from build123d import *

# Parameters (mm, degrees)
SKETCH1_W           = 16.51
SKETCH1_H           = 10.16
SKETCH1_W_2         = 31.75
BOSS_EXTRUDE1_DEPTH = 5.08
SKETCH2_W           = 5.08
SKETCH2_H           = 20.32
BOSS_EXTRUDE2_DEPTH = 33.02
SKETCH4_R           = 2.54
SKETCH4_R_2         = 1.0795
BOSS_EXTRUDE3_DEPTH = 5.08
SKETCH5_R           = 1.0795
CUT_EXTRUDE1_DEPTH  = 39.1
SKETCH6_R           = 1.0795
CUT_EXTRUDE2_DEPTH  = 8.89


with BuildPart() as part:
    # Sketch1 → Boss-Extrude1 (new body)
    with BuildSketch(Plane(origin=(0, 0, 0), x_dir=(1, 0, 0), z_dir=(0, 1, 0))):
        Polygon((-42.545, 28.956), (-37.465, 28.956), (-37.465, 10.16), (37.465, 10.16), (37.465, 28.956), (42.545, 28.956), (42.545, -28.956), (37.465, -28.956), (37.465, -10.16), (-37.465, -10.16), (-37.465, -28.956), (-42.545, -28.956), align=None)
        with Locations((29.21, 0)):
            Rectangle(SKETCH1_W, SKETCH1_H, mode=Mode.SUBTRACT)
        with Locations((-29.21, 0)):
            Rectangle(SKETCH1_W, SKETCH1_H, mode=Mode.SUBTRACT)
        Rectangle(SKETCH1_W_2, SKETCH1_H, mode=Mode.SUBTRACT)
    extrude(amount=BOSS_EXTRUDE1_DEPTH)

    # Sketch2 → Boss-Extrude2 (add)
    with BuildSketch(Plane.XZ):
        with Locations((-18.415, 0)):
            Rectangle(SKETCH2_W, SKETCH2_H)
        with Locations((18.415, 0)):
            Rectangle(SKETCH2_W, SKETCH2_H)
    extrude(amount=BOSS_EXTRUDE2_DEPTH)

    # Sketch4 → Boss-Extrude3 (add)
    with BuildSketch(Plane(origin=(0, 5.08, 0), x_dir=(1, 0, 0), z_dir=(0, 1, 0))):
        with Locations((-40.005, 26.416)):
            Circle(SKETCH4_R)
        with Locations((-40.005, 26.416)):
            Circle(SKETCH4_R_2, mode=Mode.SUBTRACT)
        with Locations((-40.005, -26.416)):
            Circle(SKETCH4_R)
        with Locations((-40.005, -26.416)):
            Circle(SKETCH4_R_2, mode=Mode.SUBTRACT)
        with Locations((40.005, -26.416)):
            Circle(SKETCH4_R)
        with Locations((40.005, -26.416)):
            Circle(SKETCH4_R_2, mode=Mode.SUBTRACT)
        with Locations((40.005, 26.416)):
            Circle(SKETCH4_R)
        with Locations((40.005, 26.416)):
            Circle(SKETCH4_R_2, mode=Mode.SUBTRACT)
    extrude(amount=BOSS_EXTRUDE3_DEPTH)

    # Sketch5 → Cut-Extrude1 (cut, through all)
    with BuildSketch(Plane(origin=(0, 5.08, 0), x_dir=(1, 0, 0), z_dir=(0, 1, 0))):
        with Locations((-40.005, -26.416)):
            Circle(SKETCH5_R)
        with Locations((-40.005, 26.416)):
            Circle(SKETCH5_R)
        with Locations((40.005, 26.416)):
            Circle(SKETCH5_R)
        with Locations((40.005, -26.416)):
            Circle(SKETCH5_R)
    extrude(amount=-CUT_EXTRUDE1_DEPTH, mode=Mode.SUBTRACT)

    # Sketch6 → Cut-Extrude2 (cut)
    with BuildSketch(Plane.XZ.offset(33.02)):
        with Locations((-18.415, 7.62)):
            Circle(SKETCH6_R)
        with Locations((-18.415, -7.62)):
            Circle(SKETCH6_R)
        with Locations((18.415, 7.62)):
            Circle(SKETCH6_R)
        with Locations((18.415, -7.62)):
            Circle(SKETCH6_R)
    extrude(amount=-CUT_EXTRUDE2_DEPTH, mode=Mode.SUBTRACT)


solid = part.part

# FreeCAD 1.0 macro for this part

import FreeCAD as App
import Part
import Sketcher
Q = App.Units.Quantity


def add_polygon(sketch, points):
    """Adds a closed chain of lines whose ends are joined by coincident constraints."""
    first, n = sketch.GeometryCount, len(points)
    for a, b in zip(points, points[1:] + points[:1]):
        sketch.addGeometry(Part.LineSegment(App.Vector(*a, 0), App.Vector(*b, 0)), False)
    for i in range(n):
        sketch.addConstraint(Sketcher.Constraint("Coincident", first + i, 2, first + (i + 1) % n, 1))

doc = App.newDocument("Part")
body = doc.addObject("PartDesign::Body", "Body")

sketch1 = body.newObject("Sketcher::SketchObject", "Sketch")
sketch1.AttachmentSupport = (doc.getObject("XZ_Plane"), [""])
sketch1.MapMode = "FlatFace"
add_polygon(sketch1, [(-37, -29), (-43, -29), (-43, 29), (-37, 29), (-37, 10), (37, 10), (37, 29), (43, 29), (43, -29), (37, -29), (37, -10), (-37, -10)])
add_polygon(sketch1, [(21, 5), (21, -5), (37, -5), (37, 5)])
add_polygon(sketch1, [(-16, 5), (-16, -5), (16, -5), (16, 5)])
add_polygon(sketch1, [(-37, 5), (-37, -5), (-21, -5), (-21, 5)])
sketch1.addConstraint([
    Sketcher.Constraint("Horizontal", 0),
    Sketcher.Constraint("Vertical", 1),
    Sketcher.Constraint("Horizontal", 2),
    Sketcher.Constraint("Vertical", 3),
    Sketcher.Constraint("Horizontal", 4),
    Sketcher.Constraint("Vertical", 5),
    Sketcher.Constraint("Horizontal", 6),
    Sketcher.Constraint("Vertical", 7),
    Sketcher.Constraint("Horizontal", 8),
    Sketcher.Constraint("Vertical", 9),
    Sketcher.Constraint("Horizontal", 10),
    Sketcher.Constraint("Vertical", 11),
    Sketcher.Constraint("Vertical", 12),
    Sketcher.Constraint("Horizontal", 13),
    Sketcher.Constraint("Vertical", 14),
    Sketcher.Constraint("Horizontal", 15),
    Sketcher.Constraint("Vertical", 16),
    Sketcher.Constraint("Horizontal", 17),
    Sketcher.Constraint("Vertical", 18),
    Sketcher.Constraint("Horizontal", 19),
    Sketcher.Constraint("Vertical", 20),
    Sketcher.Constraint("Horizontal", 21),
    Sketcher.Constraint("Vertical", 22),
    Sketcher.Constraint("Horizontal", 23),
    Sketcher.Constraint("Symmetric", 0, 2, 6, 2, -1, 1),
    Sketcher.Constraint("Symmetric", 2, 2, 8, 2, -1, 1),
    Sketcher.Constraint("Symmetric", 4, 2, 10, 2, -1, 1),
    Sketcher.Constraint("Symmetric", 16, 2, 18, 2, -1, 1),
    Sketcher.Constraint("Symmetric", 14, 2, 20, 2, -1, 1),
    Sketcher.Constraint("Symmetric", 12, 2, 22, 2, -1, 1),
    Sketcher.Constraint("Symmetric", 2, 2, 5, 2, -2),
    Sketcher.Constraint("Horizontal", 13, 2, 16, 2),
    Sketcher.Constraint("Horizontal", 15, 2, 18, 2),
    Sketcher.Constraint("Vertical", 9, 2, 13, 2),
    Sketcher.Constraint("DistanceX", 0, 2, 0, 1, Q("0.2 in")),
    Sketcher.Constraint("DistanceY", 12, 2, 12, 1, Q("0.4 in")),
    Sketcher.Constraint("DistanceX", 4, 1, 4, 2, Q("2.95 in")),
    Sketcher.Constraint("DistanceX", 13, 1, 13, 2, Q("0.65 in")),
    Sketcher.Constraint("DistanceX", 17, 1, 17, 2, Q("1.25 in")),
    Sketcher.Constraint("DistanceY", 1, 1, 1, 2, Q("2.28 in")),
    Sketcher.Constraint("DistanceY", 3, 2, 3, 1, Q("0.74 in")),
])
pad1 = body.newObject("PartDesign::Pad", "Pad")
pad1.Profile = sketch1
pad1.Length = Q("0.2 in")
pad1.Reversed = True

sketch2 = body.newObject("Sketcher::SketchObject", "Sketch001")
sketch2.AttachmentSupport = (doc.getObject("XZ_Plane"), [""])
sketch2.MapMode = "FlatFace"
add_polygon(sketch2, [(-21, 10), (-21, -10), (-16, -10), (-16, 10)])
add_polygon(sketch2, [(16, 10), (16, -10), (21, -10), (21, 10)])
sketch2.addConstraint([
    Sketcher.Constraint("Vertical", 0),
    Sketcher.Constraint("Horizontal", 1),
    Sketcher.Constraint("Vertical", 2),
    Sketcher.Constraint("Horizontal", 3),
    Sketcher.Constraint("Vertical", 4),
    Sketcher.Constraint("Horizontal", 5),
    Sketcher.Constraint("Vertical", 6),
    Sketcher.Constraint("Horizontal", 7),
    Sketcher.Constraint("Symmetric", 2, 2, 4, 2, -1, 1),
    Sketcher.Constraint("Symmetric", 0, 2, 6, 2, -1, 1),
    Sketcher.Constraint("Horizontal", 1, 2, 4, 2),
    Sketcher.Constraint("DistanceX", 1, 1, 1, 2, Q("0.2 in")),
    Sketcher.Constraint("DistanceY", 0, 2, 0, 1, Q("0.8 in")),
    Sketcher.Constraint("DistanceX", 1, 2, 4, 2, Q("1.25 in")),
])
pad2 = body.newObject("PartDesign::Pad", "Pad001")
pad2.Profile = sketch2
pad2.Length = Q("1.3 in")

sketch3 = body.newObject("Sketcher::SketchObject", "Sketch002")
sketch3.AttachmentSupport = (doc.getObject("XZ_Plane"), [""])
sketch3.MapMode = "FlatFace"
sketch3.AttachmentOffset = App.Placement(App.Vector(0, 0, -0.2 * 25.4), App.Rotation())
sketch3.addGeometry([
    Part.Circle(App.Vector(-40, -26.4, 0), App.Vector(0, 0, 1), 2.5),
    Part.Circle(App.Vector(-40, -26.4, 0), App.Vector(0, 0, 1), 1.1),
    Part.Circle(App.Vector(-40, 26.4, 0), App.Vector(0, 0, 1), 2.5),
    Part.Circle(App.Vector(-40, 26.4, 0), App.Vector(0, 0, 1), 1.1),
    Part.Circle(App.Vector(40, 26.4, 0), App.Vector(0, 0, 1), 2.5),
    Part.Circle(App.Vector(40, 26.4, 0), App.Vector(0, 0, 1), 1.1),
    Part.Circle(App.Vector(40, -26.4, 0), App.Vector(0, 0, 1), 2.5),
    Part.Circle(App.Vector(40, -26.4, 0), App.Vector(0, 0, 1), 1.1),
], False)
sketch3.addConstraint([
    Sketcher.Constraint("Coincident", 1, 3, 0, 3),
    Sketcher.Constraint("Coincident", 3, 3, 2, 3),
    Sketcher.Constraint("Coincident", 5, 3, 4, 3),
    Sketcher.Constraint("Coincident", 7, 3, 6, 3),
    Sketcher.Constraint("Equal", 0, 2),
    Sketcher.Constraint("Equal", 1, 3),
    Sketcher.Constraint("Equal", 2, 4),
    Sketcher.Constraint("Equal", 3, 5),
    Sketcher.Constraint("Equal", 4, 6),
    Sketcher.Constraint("Equal", 5, 7),
    Sketcher.Constraint("Symmetric", 0, 3, 4, 3, -1, 1),
    Sketcher.Constraint("Symmetric", 2, 3, 6, 3, -1, 1),
    Sketcher.Constraint("Symmetric", 2, 3, 4, 3, -2),
    Sketcher.Constraint("Diameter", 0, Q("0.2 in")),
    Sketcher.Constraint("Diameter", 1, Q("0.085 in")),
    Sketcher.Constraint("DistanceY", 0, 3, -1, 1, Q("1.04 in")),
    Sketcher.Constraint("DistanceX", 2, 3, 4, 3, Q("3.15 in")),
])
pad3 = body.newObject("PartDesign::Pad", "Pad002")
pad3.Profile = sketch3
pad3.Length = Q("0.2 in")
pad3.Reversed = True

sketch4 = body.newObject("Sketcher::SketchObject", "Sketch003")
sketch4.AttachmentSupport = (doc.getObject("XZ_Plane"), [""])
sketch4.MapMode = "FlatFace"
sketch4.AttachmentOffset = App.Placement(App.Vector(0, 0, -0.2 * 25.4), App.Rotation())
sketch4.addGeometry([
    Part.Circle(App.Vector(-40, 26.4, 0), App.Vector(0, 0, 1), 1.1),
    Part.Circle(App.Vector(-40, -26.4, 0), App.Vector(0, 0, 1), 1.1),
    Part.Circle(App.Vector(40, -26.4, 0), App.Vector(0, 0, 1), 1.1),
    Part.Circle(App.Vector(40, 26.4, 0), App.Vector(0, 0, 1), 1.1),
], False)
sketch4.addConstraint([
    Sketcher.Constraint("Equal", 0, 1),
    Sketcher.Constraint("Equal", 1, 2),
    Sketcher.Constraint("Equal", 2, 3),
    Sketcher.Constraint("Symmetric", 0, 3, 2, 3, -1, 1),
    Sketcher.Constraint("Symmetric", 1, 3, 3, 3, -1, 1),
    Sketcher.Constraint("Symmetric", 1, 3, 2, 3, -2),
    Sketcher.Constraint("Diameter", 0, Q("0.085 in")),
    Sketcher.Constraint("DistanceY", -1, 1, 0, 3, Q("1.04 in")),
    Sketcher.Constraint("DistanceX", 1, 3, 2, 3, Q("3.15 in")),
])
pocket1 = body.newObject("PartDesign::Pocket", "Pocket")
pocket1.Profile = sketch4
pocket1.Type = "ThroughAll"
pocket1.Reversed = True

sketch5 = body.newObject("Sketcher::SketchObject", "Sketch004")
sketch5.AttachmentSupport = (doc.getObject("XZ_Plane"), [""])
sketch5.MapMode = "FlatFace"
sketch5.AttachmentOffset = App.Placement(App.Vector(0, 0, 1.3 * 25.4), App.Rotation())
sketch5.addGeometry([
    Part.Circle(App.Vector(-18.4, 7.6, 0), App.Vector(0, 0, 1), 1.1),
    Part.Circle(App.Vector(-18.4, -7.6, 0), App.Vector(0, 0, 1), 1.1),
    Part.Circle(App.Vector(18.4, 7.6, 0), App.Vector(0, 0, 1), 1.1),
    Part.Circle(App.Vector(18.4, -7.6, 0), App.Vector(0, 0, 1), 1.1),
], False)
sketch5.addConstraint([
    Sketcher.Constraint("Equal", 0, 1),
    Sketcher.Constraint("Equal", 1, 2),
    Sketcher.Constraint("Equal", 2, 3),
    Sketcher.Constraint("Symmetric", 1, 3, 2, 3, -1, 1),
    Sketcher.Constraint("Symmetric", 0, 3, 3, 3, -1, 1),
    Sketcher.Constraint("Symmetric", 0, 3, 2, 3, -2),
    Sketcher.Constraint("Diameter", 0, Q("0.085 in")),
    Sketcher.Constraint("DistanceY", -1, 1, 0, 3, Q("0.3 in")),
    Sketcher.Constraint("DistanceX", 0, 3, 2, 3, Q("1.45 in")),
])
pocket2 = body.newObject("PartDesign::Pocket", "Pocket001")
pocket2.Profile = sketch5
pocket2.Length = Q("0.35 in")

doc.recompute()
